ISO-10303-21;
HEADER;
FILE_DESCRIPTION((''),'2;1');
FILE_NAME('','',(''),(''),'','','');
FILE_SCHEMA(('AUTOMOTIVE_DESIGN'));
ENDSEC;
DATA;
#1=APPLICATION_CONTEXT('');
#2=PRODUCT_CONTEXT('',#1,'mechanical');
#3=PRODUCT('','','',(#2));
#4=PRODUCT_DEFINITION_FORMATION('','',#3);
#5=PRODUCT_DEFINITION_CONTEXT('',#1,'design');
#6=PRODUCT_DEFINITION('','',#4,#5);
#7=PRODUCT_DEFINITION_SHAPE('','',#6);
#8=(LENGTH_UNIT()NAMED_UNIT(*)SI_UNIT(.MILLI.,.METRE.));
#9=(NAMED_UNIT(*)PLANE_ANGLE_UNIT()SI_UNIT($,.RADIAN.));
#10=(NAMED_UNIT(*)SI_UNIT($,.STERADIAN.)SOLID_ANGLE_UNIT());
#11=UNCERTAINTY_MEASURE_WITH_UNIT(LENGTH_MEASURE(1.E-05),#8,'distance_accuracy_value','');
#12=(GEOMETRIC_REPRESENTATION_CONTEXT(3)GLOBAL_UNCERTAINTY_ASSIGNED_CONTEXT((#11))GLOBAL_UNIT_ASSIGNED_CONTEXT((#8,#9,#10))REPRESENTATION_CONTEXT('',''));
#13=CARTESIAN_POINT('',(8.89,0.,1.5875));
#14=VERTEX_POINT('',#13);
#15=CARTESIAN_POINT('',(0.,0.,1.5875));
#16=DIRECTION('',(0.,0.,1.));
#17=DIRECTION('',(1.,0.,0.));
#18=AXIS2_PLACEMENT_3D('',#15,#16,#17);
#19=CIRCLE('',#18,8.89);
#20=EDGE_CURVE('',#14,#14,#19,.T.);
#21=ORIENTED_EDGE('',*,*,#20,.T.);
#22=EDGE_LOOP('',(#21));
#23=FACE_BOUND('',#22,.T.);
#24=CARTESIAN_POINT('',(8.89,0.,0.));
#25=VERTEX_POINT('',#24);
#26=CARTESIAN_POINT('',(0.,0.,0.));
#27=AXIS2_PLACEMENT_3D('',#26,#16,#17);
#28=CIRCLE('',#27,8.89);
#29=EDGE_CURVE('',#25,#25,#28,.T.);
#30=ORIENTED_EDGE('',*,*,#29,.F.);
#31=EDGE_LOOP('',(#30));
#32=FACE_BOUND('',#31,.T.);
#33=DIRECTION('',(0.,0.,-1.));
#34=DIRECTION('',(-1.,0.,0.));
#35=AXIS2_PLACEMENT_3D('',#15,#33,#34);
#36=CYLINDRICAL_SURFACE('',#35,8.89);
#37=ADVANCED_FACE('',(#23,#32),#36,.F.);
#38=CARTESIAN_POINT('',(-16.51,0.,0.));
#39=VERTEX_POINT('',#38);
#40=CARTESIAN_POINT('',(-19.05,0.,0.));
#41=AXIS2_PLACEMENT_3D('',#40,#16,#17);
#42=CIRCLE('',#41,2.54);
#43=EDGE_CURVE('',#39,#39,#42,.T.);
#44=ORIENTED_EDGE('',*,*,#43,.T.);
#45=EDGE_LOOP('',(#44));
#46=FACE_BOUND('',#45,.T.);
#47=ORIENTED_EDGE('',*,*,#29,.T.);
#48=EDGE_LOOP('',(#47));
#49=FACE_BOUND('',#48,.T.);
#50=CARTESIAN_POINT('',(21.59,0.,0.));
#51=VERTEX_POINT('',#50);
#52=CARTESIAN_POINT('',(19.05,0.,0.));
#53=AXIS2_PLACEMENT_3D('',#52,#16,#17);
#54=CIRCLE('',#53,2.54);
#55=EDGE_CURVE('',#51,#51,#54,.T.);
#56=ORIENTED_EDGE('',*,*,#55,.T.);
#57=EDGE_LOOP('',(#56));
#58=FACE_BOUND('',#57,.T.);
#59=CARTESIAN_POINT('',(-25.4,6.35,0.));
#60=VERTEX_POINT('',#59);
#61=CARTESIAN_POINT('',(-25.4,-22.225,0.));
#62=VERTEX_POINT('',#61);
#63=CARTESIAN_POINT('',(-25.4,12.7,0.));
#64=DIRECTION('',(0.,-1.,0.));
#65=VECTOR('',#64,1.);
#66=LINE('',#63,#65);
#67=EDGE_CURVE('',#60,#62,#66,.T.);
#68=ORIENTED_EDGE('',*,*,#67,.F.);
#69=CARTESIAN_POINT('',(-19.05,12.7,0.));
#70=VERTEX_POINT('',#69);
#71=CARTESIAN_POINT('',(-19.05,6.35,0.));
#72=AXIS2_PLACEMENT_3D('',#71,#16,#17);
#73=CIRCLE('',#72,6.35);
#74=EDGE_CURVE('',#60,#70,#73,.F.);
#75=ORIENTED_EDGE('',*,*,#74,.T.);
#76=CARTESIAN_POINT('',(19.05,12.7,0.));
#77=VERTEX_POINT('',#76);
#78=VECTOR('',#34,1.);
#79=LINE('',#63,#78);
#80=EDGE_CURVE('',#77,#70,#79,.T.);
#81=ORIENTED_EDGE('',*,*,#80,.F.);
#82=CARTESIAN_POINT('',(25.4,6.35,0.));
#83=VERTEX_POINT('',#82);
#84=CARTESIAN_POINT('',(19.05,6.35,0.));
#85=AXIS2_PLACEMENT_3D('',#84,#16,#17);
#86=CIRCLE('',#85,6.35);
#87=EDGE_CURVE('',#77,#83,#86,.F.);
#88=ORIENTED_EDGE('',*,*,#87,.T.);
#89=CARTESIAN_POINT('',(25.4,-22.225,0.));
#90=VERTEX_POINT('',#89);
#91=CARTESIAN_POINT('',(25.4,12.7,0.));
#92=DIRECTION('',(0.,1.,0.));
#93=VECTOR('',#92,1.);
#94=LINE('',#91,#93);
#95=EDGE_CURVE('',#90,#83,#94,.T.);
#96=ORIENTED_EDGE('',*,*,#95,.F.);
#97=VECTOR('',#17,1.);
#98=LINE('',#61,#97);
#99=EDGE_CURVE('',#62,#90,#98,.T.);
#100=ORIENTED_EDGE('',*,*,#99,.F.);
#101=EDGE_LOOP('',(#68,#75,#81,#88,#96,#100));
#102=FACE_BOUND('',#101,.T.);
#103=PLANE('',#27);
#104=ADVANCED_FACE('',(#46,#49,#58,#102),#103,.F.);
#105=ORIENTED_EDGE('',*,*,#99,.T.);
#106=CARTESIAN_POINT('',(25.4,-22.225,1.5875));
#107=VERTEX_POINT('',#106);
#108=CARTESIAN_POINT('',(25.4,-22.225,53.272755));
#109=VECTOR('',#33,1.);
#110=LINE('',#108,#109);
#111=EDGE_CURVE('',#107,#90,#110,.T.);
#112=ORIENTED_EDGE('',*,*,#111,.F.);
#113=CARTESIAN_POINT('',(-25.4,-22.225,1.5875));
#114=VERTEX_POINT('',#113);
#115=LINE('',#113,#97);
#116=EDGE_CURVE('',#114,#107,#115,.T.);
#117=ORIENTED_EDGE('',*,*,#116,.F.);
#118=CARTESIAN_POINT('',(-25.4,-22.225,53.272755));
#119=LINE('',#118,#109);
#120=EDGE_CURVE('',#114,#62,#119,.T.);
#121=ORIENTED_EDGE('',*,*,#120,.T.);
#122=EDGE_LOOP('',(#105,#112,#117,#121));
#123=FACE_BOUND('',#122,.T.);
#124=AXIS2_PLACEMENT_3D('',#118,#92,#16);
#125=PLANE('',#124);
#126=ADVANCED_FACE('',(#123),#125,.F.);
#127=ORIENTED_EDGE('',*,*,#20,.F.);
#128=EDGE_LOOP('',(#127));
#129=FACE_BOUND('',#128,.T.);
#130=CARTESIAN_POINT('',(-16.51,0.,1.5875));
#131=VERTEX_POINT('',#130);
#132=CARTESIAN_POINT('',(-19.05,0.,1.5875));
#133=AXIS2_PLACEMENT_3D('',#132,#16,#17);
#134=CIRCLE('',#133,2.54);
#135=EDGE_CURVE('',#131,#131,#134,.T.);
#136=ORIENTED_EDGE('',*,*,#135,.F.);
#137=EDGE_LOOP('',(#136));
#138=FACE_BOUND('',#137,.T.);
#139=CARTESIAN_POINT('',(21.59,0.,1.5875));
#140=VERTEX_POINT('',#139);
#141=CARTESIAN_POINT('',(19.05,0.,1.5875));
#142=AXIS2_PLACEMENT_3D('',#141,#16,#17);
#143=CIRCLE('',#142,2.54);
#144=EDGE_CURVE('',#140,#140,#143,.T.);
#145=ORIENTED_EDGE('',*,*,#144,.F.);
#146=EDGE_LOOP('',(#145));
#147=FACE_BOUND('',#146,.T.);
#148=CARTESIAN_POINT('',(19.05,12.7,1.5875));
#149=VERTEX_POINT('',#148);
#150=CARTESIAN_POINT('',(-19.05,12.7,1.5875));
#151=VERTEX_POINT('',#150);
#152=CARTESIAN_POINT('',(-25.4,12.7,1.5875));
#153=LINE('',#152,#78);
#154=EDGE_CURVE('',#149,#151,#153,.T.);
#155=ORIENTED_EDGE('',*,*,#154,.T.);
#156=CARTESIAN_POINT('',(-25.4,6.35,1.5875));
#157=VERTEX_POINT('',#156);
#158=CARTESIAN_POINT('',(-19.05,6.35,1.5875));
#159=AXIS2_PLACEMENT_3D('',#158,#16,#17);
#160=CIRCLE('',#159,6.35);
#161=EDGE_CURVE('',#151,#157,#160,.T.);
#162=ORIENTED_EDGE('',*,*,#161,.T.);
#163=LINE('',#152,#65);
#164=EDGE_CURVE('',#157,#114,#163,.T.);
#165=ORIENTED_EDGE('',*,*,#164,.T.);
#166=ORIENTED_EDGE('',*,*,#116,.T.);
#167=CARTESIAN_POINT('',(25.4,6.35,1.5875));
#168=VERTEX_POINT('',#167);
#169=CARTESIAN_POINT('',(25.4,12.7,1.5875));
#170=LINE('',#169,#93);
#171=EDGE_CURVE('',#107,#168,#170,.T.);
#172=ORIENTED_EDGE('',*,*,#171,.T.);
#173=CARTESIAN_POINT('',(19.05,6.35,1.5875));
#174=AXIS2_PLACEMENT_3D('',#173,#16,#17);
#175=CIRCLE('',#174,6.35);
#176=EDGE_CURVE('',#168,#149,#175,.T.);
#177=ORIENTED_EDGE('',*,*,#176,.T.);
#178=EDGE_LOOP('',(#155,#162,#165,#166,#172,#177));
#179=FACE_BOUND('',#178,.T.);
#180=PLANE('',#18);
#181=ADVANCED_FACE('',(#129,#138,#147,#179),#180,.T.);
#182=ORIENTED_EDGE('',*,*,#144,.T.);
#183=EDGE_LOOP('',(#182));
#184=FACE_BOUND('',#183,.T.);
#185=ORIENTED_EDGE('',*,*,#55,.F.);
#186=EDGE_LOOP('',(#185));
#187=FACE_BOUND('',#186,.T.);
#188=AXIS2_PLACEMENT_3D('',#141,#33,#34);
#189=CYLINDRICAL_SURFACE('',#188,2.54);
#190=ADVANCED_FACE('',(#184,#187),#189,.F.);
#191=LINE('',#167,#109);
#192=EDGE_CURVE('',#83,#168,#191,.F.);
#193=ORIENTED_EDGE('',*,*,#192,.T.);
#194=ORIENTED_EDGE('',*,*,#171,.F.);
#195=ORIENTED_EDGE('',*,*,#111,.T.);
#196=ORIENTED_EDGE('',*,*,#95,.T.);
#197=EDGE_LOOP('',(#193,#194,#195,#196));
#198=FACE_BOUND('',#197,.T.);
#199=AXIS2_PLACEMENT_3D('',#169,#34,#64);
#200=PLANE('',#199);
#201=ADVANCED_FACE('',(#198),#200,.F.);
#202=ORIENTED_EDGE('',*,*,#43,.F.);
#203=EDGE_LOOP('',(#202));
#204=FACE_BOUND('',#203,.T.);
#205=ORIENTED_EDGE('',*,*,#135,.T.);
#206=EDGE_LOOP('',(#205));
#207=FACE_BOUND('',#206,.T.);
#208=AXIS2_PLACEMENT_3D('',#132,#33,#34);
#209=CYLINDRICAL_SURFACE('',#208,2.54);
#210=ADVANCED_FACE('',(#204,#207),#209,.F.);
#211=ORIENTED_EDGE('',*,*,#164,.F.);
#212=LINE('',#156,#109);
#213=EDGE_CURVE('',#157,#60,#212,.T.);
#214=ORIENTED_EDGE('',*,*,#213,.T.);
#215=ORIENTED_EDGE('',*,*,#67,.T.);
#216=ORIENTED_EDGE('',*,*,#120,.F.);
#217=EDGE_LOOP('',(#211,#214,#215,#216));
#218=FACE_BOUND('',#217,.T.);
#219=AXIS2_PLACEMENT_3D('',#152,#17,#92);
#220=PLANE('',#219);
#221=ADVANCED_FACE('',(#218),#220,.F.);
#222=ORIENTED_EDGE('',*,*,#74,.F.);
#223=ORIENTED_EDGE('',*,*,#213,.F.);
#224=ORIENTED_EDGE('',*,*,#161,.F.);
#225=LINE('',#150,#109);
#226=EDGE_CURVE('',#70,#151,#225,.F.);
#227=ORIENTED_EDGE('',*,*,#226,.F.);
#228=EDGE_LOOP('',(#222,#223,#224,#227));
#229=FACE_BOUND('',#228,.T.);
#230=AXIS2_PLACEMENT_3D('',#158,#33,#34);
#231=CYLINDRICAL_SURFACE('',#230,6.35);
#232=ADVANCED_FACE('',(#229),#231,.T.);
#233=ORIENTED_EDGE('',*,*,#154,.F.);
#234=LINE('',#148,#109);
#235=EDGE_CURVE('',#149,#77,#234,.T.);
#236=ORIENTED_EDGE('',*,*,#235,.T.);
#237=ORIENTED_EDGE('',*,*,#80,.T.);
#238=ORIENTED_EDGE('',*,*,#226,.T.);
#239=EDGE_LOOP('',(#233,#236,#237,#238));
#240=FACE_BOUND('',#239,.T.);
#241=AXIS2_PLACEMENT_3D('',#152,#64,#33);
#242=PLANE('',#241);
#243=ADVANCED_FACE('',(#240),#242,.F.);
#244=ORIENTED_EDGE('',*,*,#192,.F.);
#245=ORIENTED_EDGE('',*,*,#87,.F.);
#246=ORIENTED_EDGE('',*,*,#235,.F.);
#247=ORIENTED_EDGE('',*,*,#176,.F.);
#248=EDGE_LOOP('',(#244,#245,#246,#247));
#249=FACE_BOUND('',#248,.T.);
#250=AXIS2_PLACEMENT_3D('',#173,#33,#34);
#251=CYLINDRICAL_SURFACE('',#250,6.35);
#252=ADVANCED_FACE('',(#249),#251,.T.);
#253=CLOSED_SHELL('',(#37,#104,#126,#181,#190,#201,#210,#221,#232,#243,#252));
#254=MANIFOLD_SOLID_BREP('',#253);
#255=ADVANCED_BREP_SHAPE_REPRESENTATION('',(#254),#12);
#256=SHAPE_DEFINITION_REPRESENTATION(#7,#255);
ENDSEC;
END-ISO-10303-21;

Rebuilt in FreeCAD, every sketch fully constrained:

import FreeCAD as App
import Part
import Sketcher
from FreeCAD import Vector
Q = App.Units.Quantity


def edges_at(feature, points):
    """Names of the edges that pass closest to the given points."""
    edges = feature.Shape.Edges
    near = lambda p: min(range(len(edges)), key=lambda i: edges[i].distToShape(Part.Vertex(*p))[0])
    return sorted({f"Edge{near(p) + 1}" for p in points})


def add_polygon(sketch, points):
    """Adds a closed chain of lines whose ends are joined by coincident constraints."""
    first, n = sketch.GeometryCount, len(points)
    for a, b in zip(points, points[1:] + points[:1]):
        sketch.addGeometry(Part.LineSegment(App.Vector(*a, 0), App.Vector(*b, 0)), False)
    for i in range(n):
        sketch.addConstraint(Sketcher.Constraint("Coincident", first + i, 2, first + (i + 1) % n, 1))

doc = App.newDocument("Part")
params = doc.addObject("Spreadsheet::Sheet", "Params")
for row, (alias, value) in enumerate([
    ("sketch1_diameter", "0.2 in"),
    ("sketch1_diameter2", "0.7 in"),
    ("sketch1_width", "2 in"),
    ("sketch1_height", "1 in"),
    ("pad1_length", "0.0625 in"),
    ("sketch2_width", "2 in"),
    ("sketch2_height", "0.375 in"),
    ("pad2_length", "0.0625 in"),
    ("fillet_radius", "0.25 in"),
], start=1):
    params.set(f"A{row}", alias)
    params.set(f"B{row}", "=" + value)
    params.setAlias(f"B{row}", alias)

body = doc.addObject("PartDesign::Body", "Body")

# Sketch on XY plane
sketch1 = body.newObject("Sketcher::SketchObject", "Sketch")
sketch1.AttachmentSupport = (doc.getObject("XY_Plane"), [""])
sketch1.MapMode = "FlatFace"
add_polygon(sketch1, [(-25.4, 12.7), (-25.4, -12.7), (25.4, -12.7), (25.4, 12.7)])  # lines 0-3
sketch1.addGeometry(Part.Circle(Vector(-19.1, 0, 0), Vector(0, 0, 1), 2.5), False)  # 4
sketch1.addGeometry(Part.Circle(Vector(0, 0, 0), Vector(0, 0, 1), 8.9), False)  # 5
sketch1.addGeometry(Part.Circle(Vector(19.1, 0, 0), Vector(0, 0, 1), 2.5), False)  # 6
sketch1.addConstraint([
    Sketcher.Constraint("Vertical", 0),
    Sketcher.Constraint("Horizontal", 1),
    Sketcher.Constraint("Vertical", 2),
    Sketcher.Constraint("Horizontal", 3),
    Sketcher.Constraint("Coincident", 5, 3, -1, 1),
    Sketcher.Constraint("Equal", 4, 6),
    Sketcher.Constraint("Symmetric", 4, 3, 6, 3, -1, 1),
    Sketcher.Constraint("Symmetric", 0, 2, 2, 2, -1, 1),
    Sketcher.Constraint("PointOnObject", 4, 3, -1),
    Sketcher.Constraint("Diameter", 4, Q("0.2 in")),
    Sketcher.Constraint("Diameter", 5, Q("0.7 in")),
    Sketcher.Constraint("DistanceX", 1, 1, 1, 2, Q("2 in")),
    Sketcher.Constraint("DistanceY", 0, 2, 0, 1, Q("1 in")),
    Sketcher.Constraint("DistanceX", 4, 3, 6, 3, Q("1.5 in")),
])
sketch1.setExpression("Constraints[13]", "Params.sketch1_diameter")
sketch1.setExpression("Constraints[14]", "Params.sketch1_diameter2")
sketch1.setExpression("Constraints[15]", "Params.sketch1_width")
sketch1.setExpression("Constraints[16]", "Params.sketch1_height")
pad1 = body.newObject("PartDesign::Pad", "Pad")
pad1.Profile = sketch1
pad1.setExpression("Length", "Params.pad1_length")

# Sketch on XY plane
sketch2 = body.newObject("Sketcher::SketchObject", "Sketch001")
sketch2.AttachmentSupport = (doc.getObject("XY_Plane"), [""])
sketch2.MapMode = "FlatFace"
add_polygon(sketch2, [(-25, -13), (-25, -22), (25, -22), (25, -13)])  # lines 0-3
sketch2.addConstraint([
    Sketcher.Constraint("Vertical", 0),
    Sketcher.Constraint("Horizontal", 1),
    Sketcher.Constraint("Vertical", 2),
    Sketcher.Constraint("Horizontal", 3),
    Sketcher.Constraint("DistanceX", 1, 1, 1, 2, Q("2 in")),
    Sketcher.Constraint("DistanceX", 0, 2, -1, 1, Q("1 in")),
    Sketcher.Constraint("DistanceY", 2, 2, -1, 1, Q("0.5 in")),
    Sketcher.Constraint("DistanceY", 0, 2, 0, 1, Q("0.375 in")),
])
sketch2.setExpression("Constraints[8]", "Params.sketch2_width")
sketch2.setExpression("Constraints[11]", "Params.sketch2_height")
pad2 = body.newObject("PartDesign::Pad", "Pad001")
pad2.Profile = sketch2
pad2.setExpression("Length", "Params.pad2_length")
doc.recompute()

fillet = body.newObject("PartDesign::Fillet", "Fillet")
fillet.Base = (pad2, edges_at(pad2, [(-25.4, 12.7, 0.794), (25.4, 12.7, 0.794)]))
fillet.setExpression("Radius", "Params.fillet_radius")

doc.recompute()
